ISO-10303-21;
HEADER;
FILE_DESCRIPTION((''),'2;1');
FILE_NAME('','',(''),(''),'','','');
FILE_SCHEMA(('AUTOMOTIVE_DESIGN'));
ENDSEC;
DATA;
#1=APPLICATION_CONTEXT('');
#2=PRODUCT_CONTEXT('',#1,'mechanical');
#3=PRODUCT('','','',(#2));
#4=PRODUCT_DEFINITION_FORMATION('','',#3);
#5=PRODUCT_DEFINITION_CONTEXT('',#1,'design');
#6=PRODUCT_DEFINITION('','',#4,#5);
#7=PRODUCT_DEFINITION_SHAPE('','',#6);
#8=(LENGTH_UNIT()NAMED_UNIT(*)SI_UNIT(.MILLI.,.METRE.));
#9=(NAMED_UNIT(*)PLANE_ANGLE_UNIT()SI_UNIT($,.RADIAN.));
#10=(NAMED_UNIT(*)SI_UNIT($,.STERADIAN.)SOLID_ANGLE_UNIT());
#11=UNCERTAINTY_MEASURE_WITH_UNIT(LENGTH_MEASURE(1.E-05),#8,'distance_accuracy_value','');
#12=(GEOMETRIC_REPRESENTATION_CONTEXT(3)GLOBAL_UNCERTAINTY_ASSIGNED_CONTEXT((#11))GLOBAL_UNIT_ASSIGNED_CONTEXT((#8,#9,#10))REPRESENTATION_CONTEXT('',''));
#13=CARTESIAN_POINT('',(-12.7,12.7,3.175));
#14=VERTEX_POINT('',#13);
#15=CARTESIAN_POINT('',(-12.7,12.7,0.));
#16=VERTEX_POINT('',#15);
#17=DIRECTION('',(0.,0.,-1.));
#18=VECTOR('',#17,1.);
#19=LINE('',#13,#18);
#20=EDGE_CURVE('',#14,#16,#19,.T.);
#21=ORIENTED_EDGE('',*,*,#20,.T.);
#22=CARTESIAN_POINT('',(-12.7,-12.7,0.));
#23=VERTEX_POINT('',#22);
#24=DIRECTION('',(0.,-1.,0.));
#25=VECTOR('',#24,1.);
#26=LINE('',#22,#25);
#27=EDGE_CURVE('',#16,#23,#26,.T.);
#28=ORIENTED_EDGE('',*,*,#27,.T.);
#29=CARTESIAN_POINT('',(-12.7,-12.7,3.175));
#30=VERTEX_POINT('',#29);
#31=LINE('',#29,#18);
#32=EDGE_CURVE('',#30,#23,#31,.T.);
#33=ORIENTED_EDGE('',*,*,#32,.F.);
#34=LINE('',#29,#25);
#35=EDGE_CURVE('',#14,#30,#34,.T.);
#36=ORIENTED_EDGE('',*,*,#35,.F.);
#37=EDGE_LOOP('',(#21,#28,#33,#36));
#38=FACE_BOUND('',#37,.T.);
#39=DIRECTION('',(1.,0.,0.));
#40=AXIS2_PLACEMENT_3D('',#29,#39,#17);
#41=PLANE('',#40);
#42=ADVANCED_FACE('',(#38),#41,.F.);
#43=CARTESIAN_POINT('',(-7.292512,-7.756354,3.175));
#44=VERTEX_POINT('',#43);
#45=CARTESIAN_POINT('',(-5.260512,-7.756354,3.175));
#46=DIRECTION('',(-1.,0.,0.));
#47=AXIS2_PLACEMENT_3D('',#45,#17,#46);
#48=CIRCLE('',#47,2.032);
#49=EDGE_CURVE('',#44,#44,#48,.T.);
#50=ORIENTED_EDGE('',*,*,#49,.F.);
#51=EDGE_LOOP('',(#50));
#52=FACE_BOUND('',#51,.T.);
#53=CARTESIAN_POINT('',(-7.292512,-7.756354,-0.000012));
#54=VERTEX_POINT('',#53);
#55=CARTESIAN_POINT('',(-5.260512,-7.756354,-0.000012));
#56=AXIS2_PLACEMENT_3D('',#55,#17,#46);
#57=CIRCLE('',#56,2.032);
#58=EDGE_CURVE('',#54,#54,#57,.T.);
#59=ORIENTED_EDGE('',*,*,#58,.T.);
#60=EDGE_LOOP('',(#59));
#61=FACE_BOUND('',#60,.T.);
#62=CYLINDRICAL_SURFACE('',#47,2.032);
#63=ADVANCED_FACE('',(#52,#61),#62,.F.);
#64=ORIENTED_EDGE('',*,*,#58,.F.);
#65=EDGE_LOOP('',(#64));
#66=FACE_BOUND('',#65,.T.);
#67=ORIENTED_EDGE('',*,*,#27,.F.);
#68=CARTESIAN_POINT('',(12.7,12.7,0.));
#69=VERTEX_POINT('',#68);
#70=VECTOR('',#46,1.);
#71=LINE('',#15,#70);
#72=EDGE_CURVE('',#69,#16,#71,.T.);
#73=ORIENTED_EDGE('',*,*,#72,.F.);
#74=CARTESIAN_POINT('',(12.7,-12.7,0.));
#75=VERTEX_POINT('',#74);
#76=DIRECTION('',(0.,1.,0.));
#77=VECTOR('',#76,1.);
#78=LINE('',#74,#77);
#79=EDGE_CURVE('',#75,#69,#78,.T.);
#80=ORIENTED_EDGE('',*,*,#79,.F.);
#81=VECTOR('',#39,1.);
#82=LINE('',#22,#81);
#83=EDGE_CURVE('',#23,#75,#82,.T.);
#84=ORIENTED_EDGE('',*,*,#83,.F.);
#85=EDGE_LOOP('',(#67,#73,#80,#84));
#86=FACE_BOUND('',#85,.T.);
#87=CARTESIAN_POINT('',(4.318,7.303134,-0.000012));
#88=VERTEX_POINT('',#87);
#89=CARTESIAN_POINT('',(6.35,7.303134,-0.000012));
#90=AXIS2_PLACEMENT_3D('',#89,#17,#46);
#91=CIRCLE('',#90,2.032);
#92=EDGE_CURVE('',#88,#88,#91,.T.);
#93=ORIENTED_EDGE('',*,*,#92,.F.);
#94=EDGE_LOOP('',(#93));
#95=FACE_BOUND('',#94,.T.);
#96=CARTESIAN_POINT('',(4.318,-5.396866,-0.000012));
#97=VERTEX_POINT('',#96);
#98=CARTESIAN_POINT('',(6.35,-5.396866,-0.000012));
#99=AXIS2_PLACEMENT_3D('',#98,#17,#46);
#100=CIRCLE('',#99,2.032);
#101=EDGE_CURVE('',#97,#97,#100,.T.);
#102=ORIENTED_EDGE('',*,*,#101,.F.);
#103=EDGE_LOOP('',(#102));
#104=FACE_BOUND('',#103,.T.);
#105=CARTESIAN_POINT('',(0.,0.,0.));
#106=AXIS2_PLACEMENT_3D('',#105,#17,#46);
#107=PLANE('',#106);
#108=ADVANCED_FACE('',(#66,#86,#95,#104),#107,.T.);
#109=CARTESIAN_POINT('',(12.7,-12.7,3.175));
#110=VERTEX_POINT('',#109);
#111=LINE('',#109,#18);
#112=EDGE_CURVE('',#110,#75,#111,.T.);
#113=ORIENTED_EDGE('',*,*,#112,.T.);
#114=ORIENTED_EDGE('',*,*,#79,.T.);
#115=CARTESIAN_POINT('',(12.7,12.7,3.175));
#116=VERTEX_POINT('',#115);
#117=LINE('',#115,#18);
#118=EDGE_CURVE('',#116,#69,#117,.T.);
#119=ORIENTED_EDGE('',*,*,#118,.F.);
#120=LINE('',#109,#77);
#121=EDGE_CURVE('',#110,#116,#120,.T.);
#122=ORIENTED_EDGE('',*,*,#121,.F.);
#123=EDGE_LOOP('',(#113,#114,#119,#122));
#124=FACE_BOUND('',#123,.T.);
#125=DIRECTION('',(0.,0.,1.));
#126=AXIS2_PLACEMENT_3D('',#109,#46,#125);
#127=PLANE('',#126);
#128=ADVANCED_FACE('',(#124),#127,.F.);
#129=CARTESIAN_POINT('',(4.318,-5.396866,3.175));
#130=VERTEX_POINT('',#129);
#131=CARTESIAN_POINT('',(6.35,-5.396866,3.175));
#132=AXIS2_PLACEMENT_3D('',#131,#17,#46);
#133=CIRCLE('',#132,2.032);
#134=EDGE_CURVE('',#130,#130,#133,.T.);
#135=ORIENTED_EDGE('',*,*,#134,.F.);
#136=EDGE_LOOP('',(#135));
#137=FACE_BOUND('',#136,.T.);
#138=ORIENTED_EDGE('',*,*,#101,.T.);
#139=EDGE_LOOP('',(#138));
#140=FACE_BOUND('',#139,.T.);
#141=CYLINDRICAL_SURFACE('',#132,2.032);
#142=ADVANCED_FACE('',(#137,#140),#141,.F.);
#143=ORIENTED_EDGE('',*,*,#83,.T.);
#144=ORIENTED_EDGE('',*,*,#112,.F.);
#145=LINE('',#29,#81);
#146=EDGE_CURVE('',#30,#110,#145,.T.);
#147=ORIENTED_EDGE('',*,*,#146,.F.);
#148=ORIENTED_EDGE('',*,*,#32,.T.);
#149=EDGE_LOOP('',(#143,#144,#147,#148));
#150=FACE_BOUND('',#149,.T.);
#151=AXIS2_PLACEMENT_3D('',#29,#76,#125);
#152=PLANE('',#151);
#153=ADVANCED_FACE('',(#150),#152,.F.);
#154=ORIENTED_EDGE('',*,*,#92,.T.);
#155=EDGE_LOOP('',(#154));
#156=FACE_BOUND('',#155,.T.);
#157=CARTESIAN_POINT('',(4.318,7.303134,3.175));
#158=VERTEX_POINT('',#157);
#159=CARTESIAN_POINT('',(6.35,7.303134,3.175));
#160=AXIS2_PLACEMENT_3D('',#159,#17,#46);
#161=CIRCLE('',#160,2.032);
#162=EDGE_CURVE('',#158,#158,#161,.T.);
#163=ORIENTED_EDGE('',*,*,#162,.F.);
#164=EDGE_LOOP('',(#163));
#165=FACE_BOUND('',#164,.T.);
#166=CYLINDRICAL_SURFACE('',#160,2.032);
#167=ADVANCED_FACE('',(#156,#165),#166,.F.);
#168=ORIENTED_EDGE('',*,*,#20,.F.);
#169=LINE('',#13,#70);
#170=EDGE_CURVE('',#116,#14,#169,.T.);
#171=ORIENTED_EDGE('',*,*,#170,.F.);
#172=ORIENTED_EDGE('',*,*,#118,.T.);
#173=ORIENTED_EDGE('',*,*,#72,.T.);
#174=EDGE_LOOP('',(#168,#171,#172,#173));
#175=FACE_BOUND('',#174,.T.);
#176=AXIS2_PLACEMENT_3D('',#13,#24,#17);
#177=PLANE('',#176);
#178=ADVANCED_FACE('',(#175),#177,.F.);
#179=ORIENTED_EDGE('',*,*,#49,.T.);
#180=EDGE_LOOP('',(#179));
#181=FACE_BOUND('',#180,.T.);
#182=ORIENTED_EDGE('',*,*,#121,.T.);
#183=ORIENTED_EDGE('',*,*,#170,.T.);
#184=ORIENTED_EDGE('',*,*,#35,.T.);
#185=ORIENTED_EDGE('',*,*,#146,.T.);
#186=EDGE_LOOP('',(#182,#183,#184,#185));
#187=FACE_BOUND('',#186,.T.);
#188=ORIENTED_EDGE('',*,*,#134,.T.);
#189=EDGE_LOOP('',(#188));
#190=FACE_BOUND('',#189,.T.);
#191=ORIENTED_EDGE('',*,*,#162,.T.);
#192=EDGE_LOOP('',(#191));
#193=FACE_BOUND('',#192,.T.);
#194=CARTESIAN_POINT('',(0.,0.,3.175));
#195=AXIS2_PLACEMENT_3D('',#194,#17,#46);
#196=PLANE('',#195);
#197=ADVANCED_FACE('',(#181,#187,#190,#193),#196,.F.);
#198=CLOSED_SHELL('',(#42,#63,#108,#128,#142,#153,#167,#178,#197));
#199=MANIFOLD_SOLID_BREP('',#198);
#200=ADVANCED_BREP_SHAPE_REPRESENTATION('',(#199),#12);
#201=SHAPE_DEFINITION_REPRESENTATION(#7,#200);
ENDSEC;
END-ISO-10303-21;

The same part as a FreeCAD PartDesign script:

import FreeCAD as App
import Part
import Sketcher
from FreeCAD import Vector
Q = App.Units.Quantity


def add_polygon(sketch, points):
    """Adds a closed chain of lines whose ends are joined by coincident constraints."""
    first, n = sketch.GeometryCount, len(points)
    for a, b in zip(points, points[1:] + points[:1]):
        sketch.addGeometry(Part.LineSegment(App.Vector(*a, 0), App.Vector(*b, 0)), False)
    for i in range(n):
        sketch.addConstraint(Sketcher.Constraint("Coincident", first + i, 2, first + (i + 1) % n, 1))

doc = App.newDocument("Part")
body = doc.addObject("PartDesign::Body", "Body")

# Sketch on XY plane
sketch1 = body.newObject("Sketcher::SketchObject", "Sketch")
sketch1.AttachmentSupport = (doc.getObject("XY_Plane"), [""])
sketch1.MapMode = "FlatFace"
add_polygon(sketch1, [(-13, 13), (-13, -13), (13, -13), (13, 13)])  # lines 0-3
sketch1.addConstraint(Sketcher.Constraint("Vertical", 0))
sketch1.addConstraint(Sketcher.Constraint("Horizontal", 1))
sketch1.addConstraint(Sketcher.Constraint("Vertical", 2))
sketch1.addConstraint(Sketcher.Constraint("Horizontal", 3))
sketch1.addConstraint(Sketcher.Constraint("Symmetric", 0, 2, 2, 2, -1, 1))
sketch1.addConstraint(Sketcher.Constraint("Equal", 3, 0))
sketch1.addConstraint(Sketcher.Constraint("DistanceX", 1, 1, 1, 2, Q("1 in")))
pad1 = body.newObject("PartDesign::Pad", "Pad")
pad1.Profile = sketch1
pad1.Length = Q("0.125 in")

# Sketch on XY plane
sketch2 = body.newObject("Sketcher::SketchObject", "Sketch001")
sketch2.AttachmentSupport = (doc.getObject("XY_Plane"), [""])
sketch2.MapMode = "FlatFace"
sketch2.addGeometry(Part.Circle(Vector(-5.3, -7.8, 0), Vector(0, 0, 1), 2), False)
sketch2.addGeometry(Part.Circle(Vector(6.3, -5.4, 0), Vector(0, 0, 1), 2), False)
sketch2.addGeometry(Part.Circle(Vector(6.3, 7.3, 0), Vector(0, 0, 1), 2), False)
sketch2.addConstraint(Sketcher.Constraint("Equal", 0, 1))
sketch2.addConstraint(Sketcher.Constraint("Equal", 1, 2))
sketch2.addConstraint(Sketcher.Constraint("Vertical", 1, 3, 2, 3))
sketch2.addConstraint(Sketcher.Constraint("Diameter", 0, Q("0.16 in")))
sketch2.addConstraint(Sketcher.Constraint("DistanceY", 1, 3, 2, 3, Q("0.5 in")))
sketch2.addConstraint(Sketcher.Constraint("DistanceX", -1, 1, 1, 3, Q("0.25 in")))
sketch2.addConstraint(Sketcher.Constraint("DistanceX", 0, 3, -1, 1, Q("5.260512 mm")))
sketch2.addConstraint(Sketcher.Constraint("DistanceY", 0, 3, -1, 1, Q("7.756354 mm")))
sketch2.addConstraint(Sketcher.Constraint("DistanceY", 1, 3, -1, 1, Q("5.396866 mm")))
pocket1 = body.newObject("PartDesign::Pocket", "Pocket")
pocket1.Profile = sketch2
pocket1.Type = "ThroughAll"
pocket1.Midplane = True

doc.recompute()
